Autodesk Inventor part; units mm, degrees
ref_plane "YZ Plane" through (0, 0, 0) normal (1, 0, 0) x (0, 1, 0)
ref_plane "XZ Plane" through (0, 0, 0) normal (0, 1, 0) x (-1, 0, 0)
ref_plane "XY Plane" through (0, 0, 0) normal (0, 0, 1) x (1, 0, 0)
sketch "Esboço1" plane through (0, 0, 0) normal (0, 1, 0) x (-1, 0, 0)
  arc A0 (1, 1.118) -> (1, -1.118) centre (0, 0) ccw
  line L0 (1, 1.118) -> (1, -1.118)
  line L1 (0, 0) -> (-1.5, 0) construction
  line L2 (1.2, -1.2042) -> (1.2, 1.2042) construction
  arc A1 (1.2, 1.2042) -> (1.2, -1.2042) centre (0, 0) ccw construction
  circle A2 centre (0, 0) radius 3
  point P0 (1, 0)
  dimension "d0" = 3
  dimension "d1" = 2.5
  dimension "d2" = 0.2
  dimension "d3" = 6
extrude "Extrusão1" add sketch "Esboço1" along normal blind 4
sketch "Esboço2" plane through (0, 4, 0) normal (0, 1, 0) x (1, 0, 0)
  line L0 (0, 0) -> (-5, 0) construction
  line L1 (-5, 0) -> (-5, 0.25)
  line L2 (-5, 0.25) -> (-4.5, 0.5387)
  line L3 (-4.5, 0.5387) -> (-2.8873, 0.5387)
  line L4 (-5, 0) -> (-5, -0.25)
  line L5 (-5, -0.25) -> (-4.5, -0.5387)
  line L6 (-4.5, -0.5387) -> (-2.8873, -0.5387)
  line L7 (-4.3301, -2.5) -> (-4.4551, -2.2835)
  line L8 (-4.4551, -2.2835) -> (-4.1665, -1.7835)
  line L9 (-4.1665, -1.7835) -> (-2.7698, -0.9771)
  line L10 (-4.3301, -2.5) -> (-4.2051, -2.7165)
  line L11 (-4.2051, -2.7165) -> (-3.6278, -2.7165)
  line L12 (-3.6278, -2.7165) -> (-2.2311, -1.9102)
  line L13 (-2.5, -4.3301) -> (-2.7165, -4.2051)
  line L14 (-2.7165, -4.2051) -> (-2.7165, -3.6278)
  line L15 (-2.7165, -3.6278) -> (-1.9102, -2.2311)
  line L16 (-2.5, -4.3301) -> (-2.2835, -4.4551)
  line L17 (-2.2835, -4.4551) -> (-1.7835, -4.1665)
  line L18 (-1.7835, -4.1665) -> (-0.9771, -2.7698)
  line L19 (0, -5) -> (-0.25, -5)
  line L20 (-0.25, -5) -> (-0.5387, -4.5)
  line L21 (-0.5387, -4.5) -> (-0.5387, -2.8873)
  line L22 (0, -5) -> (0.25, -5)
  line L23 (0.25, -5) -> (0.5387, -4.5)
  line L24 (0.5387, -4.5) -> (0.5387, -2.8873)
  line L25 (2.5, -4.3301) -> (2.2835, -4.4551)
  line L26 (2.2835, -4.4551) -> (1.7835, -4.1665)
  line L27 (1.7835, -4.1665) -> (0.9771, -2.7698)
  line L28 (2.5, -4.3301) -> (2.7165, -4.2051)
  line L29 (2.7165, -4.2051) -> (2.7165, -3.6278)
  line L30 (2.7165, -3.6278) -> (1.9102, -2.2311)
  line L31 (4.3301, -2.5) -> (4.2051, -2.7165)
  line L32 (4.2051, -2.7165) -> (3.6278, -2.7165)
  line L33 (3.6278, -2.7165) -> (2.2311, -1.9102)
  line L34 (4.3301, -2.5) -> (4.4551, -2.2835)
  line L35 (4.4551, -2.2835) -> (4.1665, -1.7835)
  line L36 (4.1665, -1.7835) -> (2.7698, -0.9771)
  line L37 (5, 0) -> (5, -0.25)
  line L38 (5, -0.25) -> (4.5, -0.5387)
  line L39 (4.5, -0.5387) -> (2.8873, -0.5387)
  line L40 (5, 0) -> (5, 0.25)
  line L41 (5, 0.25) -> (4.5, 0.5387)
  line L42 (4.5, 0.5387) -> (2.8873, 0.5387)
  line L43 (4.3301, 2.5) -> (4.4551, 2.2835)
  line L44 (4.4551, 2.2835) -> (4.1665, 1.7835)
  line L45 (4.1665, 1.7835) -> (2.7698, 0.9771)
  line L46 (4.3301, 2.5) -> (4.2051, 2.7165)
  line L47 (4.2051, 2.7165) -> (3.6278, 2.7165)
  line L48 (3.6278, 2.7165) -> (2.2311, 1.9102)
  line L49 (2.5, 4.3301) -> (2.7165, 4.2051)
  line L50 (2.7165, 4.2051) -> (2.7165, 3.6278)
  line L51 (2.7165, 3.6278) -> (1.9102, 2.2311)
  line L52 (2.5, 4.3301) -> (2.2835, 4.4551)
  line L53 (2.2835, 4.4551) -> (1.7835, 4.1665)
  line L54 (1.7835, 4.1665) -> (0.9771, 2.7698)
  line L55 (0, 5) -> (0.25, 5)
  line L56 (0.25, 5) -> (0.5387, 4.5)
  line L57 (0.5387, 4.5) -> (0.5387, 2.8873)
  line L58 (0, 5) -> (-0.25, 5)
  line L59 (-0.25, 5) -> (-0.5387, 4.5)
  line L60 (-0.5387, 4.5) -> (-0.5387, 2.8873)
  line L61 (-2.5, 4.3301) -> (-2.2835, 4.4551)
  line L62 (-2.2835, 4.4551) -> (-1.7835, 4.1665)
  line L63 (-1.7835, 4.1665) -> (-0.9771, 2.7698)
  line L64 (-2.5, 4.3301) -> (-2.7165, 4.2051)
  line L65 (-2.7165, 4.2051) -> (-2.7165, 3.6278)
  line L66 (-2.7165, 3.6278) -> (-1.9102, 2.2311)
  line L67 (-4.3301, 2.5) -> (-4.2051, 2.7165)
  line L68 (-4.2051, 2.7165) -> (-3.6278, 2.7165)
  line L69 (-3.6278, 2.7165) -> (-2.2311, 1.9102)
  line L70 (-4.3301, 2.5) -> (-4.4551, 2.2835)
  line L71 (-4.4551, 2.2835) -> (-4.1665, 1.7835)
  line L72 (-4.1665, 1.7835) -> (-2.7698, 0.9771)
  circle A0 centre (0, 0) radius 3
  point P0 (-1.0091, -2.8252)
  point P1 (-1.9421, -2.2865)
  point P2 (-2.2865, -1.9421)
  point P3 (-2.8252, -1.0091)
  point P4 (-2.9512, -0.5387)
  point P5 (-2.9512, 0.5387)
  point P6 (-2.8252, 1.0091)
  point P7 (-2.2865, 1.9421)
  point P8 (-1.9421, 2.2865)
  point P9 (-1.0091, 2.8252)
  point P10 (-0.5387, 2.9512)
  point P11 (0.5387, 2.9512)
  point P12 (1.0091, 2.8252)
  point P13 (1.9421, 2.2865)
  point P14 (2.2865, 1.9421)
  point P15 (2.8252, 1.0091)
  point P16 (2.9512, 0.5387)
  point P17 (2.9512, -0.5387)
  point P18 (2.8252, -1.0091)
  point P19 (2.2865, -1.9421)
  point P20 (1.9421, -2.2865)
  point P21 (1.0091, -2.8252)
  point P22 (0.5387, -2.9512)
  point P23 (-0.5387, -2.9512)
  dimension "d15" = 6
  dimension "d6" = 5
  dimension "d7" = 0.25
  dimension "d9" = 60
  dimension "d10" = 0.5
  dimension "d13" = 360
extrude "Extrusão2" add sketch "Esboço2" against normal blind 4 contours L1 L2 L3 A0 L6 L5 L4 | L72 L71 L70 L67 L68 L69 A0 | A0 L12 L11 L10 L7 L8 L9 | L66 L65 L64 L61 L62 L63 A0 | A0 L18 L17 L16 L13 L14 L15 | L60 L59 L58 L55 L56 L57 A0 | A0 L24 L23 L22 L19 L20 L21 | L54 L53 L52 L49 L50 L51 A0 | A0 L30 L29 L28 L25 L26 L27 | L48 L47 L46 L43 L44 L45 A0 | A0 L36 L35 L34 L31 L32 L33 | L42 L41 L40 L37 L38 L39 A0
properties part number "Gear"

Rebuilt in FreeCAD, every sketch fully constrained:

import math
import FreeCAD as App
import Part
import Sketcher

V = App.Vector
Q = App.Units.Quantity

doc = App.newDocument("Part")
params = doc.addObject("Spreadsheet::Sheet", "Params")
for row, (alias, value) in enumerate([
    ("sketch1_diameter", "6 mm"),
    ("sketch1_radius", "1.5 mm"),
    ("pad1_length", "4 mm"),
    ("sketch2_radius", "3 mm"),
    ("sketch2_width", "0.5 mm"),
    ("sketch2_length", "0.5 mm"),
    ("pad2_length", "4 mm"),
], start=1):
    params.set(f"A{row}", alias)
    params.set(f"B{row}", "=" + value)
    params.setAlias(f"B{row}", alias)

body = doc.addObject("PartDesign::Body", "Body")

sketch1 = doc.addObject("Sketcher::SketchObject", "Sketch")
body.addObject(sketch1)
sketch1.AttachmentSupport = (doc.XZ_Plane, [""])
sketch1.MapMode = "FlatFace"
sketch1.addGeometry([
    Part.Circle(V(0, 0, 0), V(0, 0, 1), 3),
    Part.ArcOfCircle(Part.Circle(V(0, 0, 0), V(0, 0, 1), 1.499975), math.radians(-131.81118), math.radians(131.81118)),
    Part.LineSegment(V(-1, 1.118, 0), V(-1, -1.118, 0)),
], False)
sketch1.addConstraint([
    Sketcher.Constraint("Coincident", 1, 1, 2, 2),
    Sketcher.Constraint("Coincident", 2, 1, 1, 2),
    Sketcher.Constraint("Vertical", 2),
    Sketcher.Constraint("Coincident", 0, 3, -1, 1),
    Sketcher.Constraint("Coincident", 1, 3, -1, 1),
    Sketcher.Constraint("Diameter", 0, Q("6 mm")),
    Sketcher.Constraint("Radius", 1, Q("1.5 mm")),
    Sketcher.Constraint("DistanceX", 1, 1, -1, 1, Q("1 mm")),
])
sketch1.setExpression("Constraints[5]", "Params.sketch1_diameter")
sketch1.setExpression("Constraints[6]", "Params.sketch1_radius")
pad1 = doc.addObject("PartDesign::Pad", "Pad")
body.addObject(pad1)
pad1.Profile = sketch1
pad1.setExpression("Length", "Params.pad1_length")
pad1.Reversed = True

sketch2 = doc.addObject("Sketcher::SketchObject", "Sketch001")
body.addObject(sketch2)
sketch2.AttachmentSupport = (doc.XZ_Plane, [""])
sketch2.MapMode = "FlatFace"
sketch2.AttachmentOffset = App.Placement(V(0, 0, -4), App.Rotation())
sketch2.addGeometry([
    Part.LineSegment(V(-5, -0.25, 0), V(-5, 0.25, 0)),
    Part.LineSegment(V(-5, 0.25, 0), V(-4.5, 0.5387, 0)),
    Part.LineSegment(V(-4.5, 0.5387, 0), V(-2.951237, 0.5387, 0)),
    Part.ArcOfCircle(Part.Circle(V(0, 0, 0), V(0, 0, 1), 3), math.radians(169.65548), math.radians(190.34452)),
    Part.LineSegment(V(-2.951237, -0.5387, 0), V(-4.5, -0.5387, 0)),
    Part.LineSegment(V(-4.5, -0.5387, 0), V(-5, -0.25, 0)),
    Part.LineSegment(V(-4.1665, -1.7835, 0), V(-2.825199, -1.009085, 0)),
    Part.ArcOfCircle(Part.Circle(V(0, 0, 0), V(0, 0, 1), 3), math.radians(-160.344638), math.radians(-139.65492)),
    Part.LineSegment(V(-2.286478, -1.942169, 0), V(-3.6278, -2.7165, 0)),
    Part.LineSegment(V(-3.6278, -2.7165, 0), V(-4.2051, -2.7165, 0)),
    Part.LineSegment(V(-4.2051, -2.7165, 0), V(-4.4551, -2.2835, 0)),
    Part.LineSegment(V(-4.4551, -2.2835, 0), V(-4.1665, -1.7835, 0)),
    Part.ArcOfCircle(Part.Circle(V(0, 0, 0), V(0, 0, 1), 3), math.radians(139.65492), math.radians(160.344638)),
    Part.LineSegment(V(-2.825199, 1.009085, 0), V(-4.1665, 1.7835, 0)),
    Part.LineSegment(V(-4.1665, 1.7835, 0), V(-4.4551, 2.2835, 0)),
    Part.LineSegment(V(-4.4551, 2.2835, 0), V(-4.2051, 2.7165, 0)),
    Part.LineSegment(V(-4.2051, 2.7165, 0), V(-3.6278, 2.7165, 0)),
    Part.LineSegment(V(-3.6278, 2.7165, 0), V(-2.286478, 1.942169, 0)),
    Part.LineSegment(V(-2.7165, -3.6278, 0), V(-1.942169, -2.286478, 0)),
    Part.ArcOfCircle(Part.Circle(V(0, 0, 0), V(0, 0, 1), 3), math.radians(-130.34508), math.radians(-109.655362)),
    Part.LineSegment(V(-1.009085, -2.825199, 0), V(-1.7835, -4.1665, 0)),
    Part.LineSegment(V(-1.7835, -4.1665, 0), V(-2.2835, -4.4551, 0)),
    Part.LineSegment(V(-2.2835, -4.4551, 0), V(-2.7165, -4.2051, 0)),
    Part.LineSegment(V(-2.7165, -4.2051, 0), V(-2.7165, -3.6278, 0)),
    Part.ArcOfCircle(Part.Circle(V(0, 0, 0), V(0, 0, 1), 3), math.radians(109.655362), math.radians(130.34508)),
    Part.LineSegment(V(-1.942169, 2.286478, 0), V(-2.7165, 3.6278, 0)),
    Part.LineSegment(V(-2.7165, 3.6278, 0), V(-2.7165, 4.2051, 0)),
    Part.LineSegment(V(-2.7165, 4.2051, 0), V(-2.2835, 4.4551, 0)),
    Part.LineSegment(V(-2.2835, 4.4551, 0), V(-1.7835, 4.1665, 0)),
    Part.LineSegment(V(-1.7835, 4.1665, 0), V(-1.009085, 2.825199, 0)),
    Part.LineSegment(V(-0.5387, -4.5, 0), V(-0.5387, -2.951237, 0)),
    Part.ArcOfCircle(Part.Circle(V(0, 0, 0), V(0, 0, 1), 3), math.radians(-100.34452), math.radians(-79.65548)),
    Part.LineSegment(V(0.5387, -2.951237, 0), V(0.5387, -4.5, 0)),
    Part.LineSegment(V(0.5387, -4.5, 0), V(0.25, -5, 0)),
    Part.LineSegment(V(0.25, -5, 0), V(-0.25, -5, 0)),
    Part.LineSegment(V(-0.25, -5, 0), V(-0.5387, -4.5, 0)),
    Part.ArcOfCircle(Part.Circle(V(0, 0, 0), V(0, 0, 1), 3), math.radians(79.65548), math.radians(100.34452)),
    Part.LineSegment(V(-0.5387, 2.951237, 0), V(-0.5387, 4.5, 0)),
    Part.LineSegment(V(-0.5387, 4.5, 0), V(-0.25, 5, 0)),
    Part.LineSegment(V(-0.25, 5, 0), V(0.25, 5, 0)),
    Part.LineSegment(V(0.25, 5, 0), V(0.5387, 4.5, 0)),
    Part.LineSegment(V(0.5387, 4.5, 0), V(0.5387, 2.951237, 0)),
    Part.LineSegment(V(1.7835, -4.1665, 0), V(1.009085, -2.825199, 0)),
    Part.ArcOfCircle(Part.Circle(V(0, 0, 0), V(0, 0, 1), 3), math.radians(-70.344638), math.radians(-49.65492)),
    Part.LineSegment(V(1.942169, -2.286478, 0), V(2.7165, -3.6278, 0)),
    Part.LineSegment(V(2.7165, -3.6278, 0), V(2.7165, -4.2051, 0)),
    Part.LineSegment(V(2.7165, -4.2051, 0), V(2.2835, -4.4551, 0)),
    Part.LineSegment(V(2.2835, -4.4551, 0), V(1.7835, -4.1665, 0)),
    Part.ArcOfCircle(Part.Circle(V(0, 0, 0), V(0, 0, 1), 3), math.radians(49.65492), math.radians(70.344638)),
    Part.LineSegment(V(1.009085, 2.825199, 0), V(1.7835, 4.1665, 0)),
    Part.LineSegment(V(1.7835, 4.1665, 0), V(2.2835, 4.4551, 0)),
    Part.LineSegment(V(2.2835, 4.4551, 0), V(2.7165, 4.2051, 0)),
    Part.LineSegment(V(2.7165, 4.2051, 0), V(2.7165, 3.6278, 0)),
    Part.LineSegment(V(2.7165, 3.6278, 0), V(1.942169, 2.286478, 0)),
    Part.LineSegment(V(3.6278, -2.7165, 0), V(2.286478, -1.942169, 0)),
    Part.ArcOfCircle(Part.Circle(V(0, 0, 0), V(0, 0, 1), 3), math.radians(-40.34508), math.radians(-19.655362)),
    Part.LineSegment(V(2.825199, -1.009085, 0), V(4.1665, -1.7835, 0)),
    Part.LineSegment(V(4.1665, -1.7835, 0), V(4.4551, -2.2835, 0)),
    Part.LineSegment(V(4.4551, -2.2835, 0), V(4.2051, -2.7165, 0)),
    Part.LineSegment(V(4.2051, -2.7165, 0), V(3.6278, -2.7165, 0)),
    Part.ArcOfCircle(Part.Circle(V(0, 0, 0), V(0, 0, 1), 3), math.radians(19.655362), math.radians(40.34508)),
    Part.LineSegment(V(2.286478, 1.942169, 0), V(3.6278, 2.7165, 0)),
    Part.LineSegment(V(3.6278, 2.7165, 0), V(4.2051, 2.7165, 0)),
    Part.LineSegment(V(4.2051, 2.7165, 0), V(4.4551, 2.2835, 0)),
    Part.LineSegment(V(4.4551, 2.2835, 0), V(4.1665, 1.7835, 0)),
    Part.LineSegment(V(4.1665, 1.7835, 0), V(2.825199, 1.009085, 0)),
    Part.LineSegment(V(4.5, -0.5387, 0), V(2.951237, -0.5387, 0)),
    Part.ArcOfCircle(Part.Circle(V(0, 0, 0), V(0, 0, 1), 3), math.radians(-10.34452), math.radians(10.34452)),
    Part.LineSegment(V(2.951237, 0.5387, 0), V(4.5, 0.5387, 0)),
    Part.LineSegment(V(4.5, 0.5387, 0), V(5, 0.25, 0)),
    Part.LineSegment(V(5, 0.25, 0), V(5, -0.25, 0)),
    Part.LineSegment(V(5, -0.25, 0), V(4.5, -0.5387, 0)),
], False)
sketch2.addConstraint([
    Sketcher.Constraint("Coincident", 0, 2, 1, 1),
    Sketcher.Constraint("Coincident", 1, 2, 2, 1),
    Sketcher.Constraint("Coincident", 2, 2, 3, 1),
    Sketcher.Constraint("Coincident", 3, 2, 4, 1),
    Sketcher.Constraint("Coincident", 4, 2, 5, 1),
    Sketcher.Constraint("Coincident", 5, 2, 0, 1),
    Sketcher.Constraint("Coincident", 6, 2, 7, 1),
    Sketcher.Constraint("Coincident", 7, 2, 8, 1),
    Sketcher.Constraint("Coincident", 8, 2, 9, 1),
    Sketcher.Constraint("Coincident", 9, 2, 10, 1),
    Sketcher.Constraint("Coincident", 10, 2, 11, 1),
    Sketcher.Constraint("Coincident", 11, 2, 6, 1),
    Sketcher.Constraint("Coincident", 12, 2, 13, 1),
    Sketcher.Constraint("Coincident", 13, 2, 14, 1),
    Sketcher.Constraint("Coincident", 14, 2, 15, 1),
    Sketcher.Constraint("Coincident", 15, 2, 16, 1),
    Sketcher.Constraint("Coincident", 16, 2, 17, 1),
    Sketcher.Constraint("Coincident", 17, 2, 12, 1),
    Sketcher.Constraint("Coincident", 18, 2, 19, 1),
    Sketcher.Constraint("Coincident", 19, 2, 20, 1),
    Sketcher.Constraint("Coincident", 20, 2, 21, 1),
    Sketcher.Constraint("Coincident", 21, 2, 22, 1),
    Sketcher.Constraint("Coincident", 22, 2, 23, 1),
    Sketcher.Constraint("Coincident", 23, 2, 18, 1),
    Sketcher.Constraint("Coincident", 24, 2, 25, 1),
    Sketcher.Constraint("Coincident", 25, 2, 26, 1),
    Sketcher.Constraint("Coincident", 26, 2, 27, 1),
    Sketcher.Constraint("Coincident", 27, 2, 28, 1),
    Sketcher.Constraint("Coincident", 28, 2, 29, 1),
    Sketcher.Constraint("Coincident", 29, 2, 24, 1),
    Sketcher.Constraint("Coincident", 30, 2, 31, 1),
    Sketcher.Constraint("Coincident", 31, 2, 32, 1),
    Sketcher.Constraint("Coincident", 32, 2, 33, 1),
    Sketcher.Constraint("Coincident", 33, 2, 34, 1),
    Sketcher.Constraint("Coincident", 34, 2, 35, 1),
    Sketcher.Constraint("Coincident", 35, 2, 30, 1),
    Sketcher.Constraint("Coincident", 36, 2, 37, 1),
    Sketcher.Constraint("Coincident", 37, 2, 38, 1),
    Sketcher.Constraint("Coincident", 38, 2, 39, 1),
    Sketcher.Constraint("Coincident", 39, 2, 40, 1),
    Sketcher.Constraint("Coincident", 40, 2, 41, 1),
    Sketcher.Constraint("Coincident", 41, 2, 36, 1),
    Sketcher.Constraint("Coincident", 42, 2, 43, 1),
    Sketcher.Constraint("Coincident", 43, 2, 44, 1),
    Sketcher.Constraint("Coincident", 44, 2, 45, 1),
    Sketcher.Constraint("Coincident", 45, 2, 46, 1),
    Sketcher.Constraint("Coincident", 46, 2, 47, 1),
    Sketcher.Constraint("Coincident", 47, 2, 42, 1),
    Sketcher.Constraint("Coincident", 48, 2, 49, 1),
    Sketcher.Constraint("Coincident", 49, 2, 50, 1),
    Sketcher.Constraint("Coincident", 50, 2, 51, 1),
    Sketcher.Constraint("Coincident", 51, 2, 52, 1),
    Sketcher.Constraint("Coincident", 52, 2, 53, 1),
    Sketcher.Constraint("Coincident", 53, 2, 48, 1),
    Sketcher.Constraint("Coincident", 54, 2, 55, 1),
    Sketcher.Constraint("Coincident", 55, 2, 56, 1),
    Sketcher.Constraint("Coincident", 56, 2, 57, 1),
    Sketcher.Constraint("Coincident", 57, 2, 58, 1),
    Sketcher.Constraint("Coincident", 58, 2, 59, 1),
    Sketcher.Constraint("Coincident", 59, 2, 54, 1),
    Sketcher.Constraint("Coincident", 60, 2, 61, 1),
    Sketcher.Constraint("Coincident", 61, 2, 62, 1),
    Sketcher.Constraint("Coincident", 62, 2, 63, 1),
    Sketcher.Constraint("Coincident", 63, 2, 64, 1),
    Sketcher.Constraint("Coincident", 64, 2, 65, 1),
    Sketcher.Constraint("Coincident", 65, 2, 60, 1),
    Sketcher.Constraint("Coincident", 66, 2, 67, 1),
    Sketcher.Constraint("Coincident", 67, 2, 68, 1),
    Sketcher.Constraint("Coincident", 68, 2, 69, 1),
    Sketcher.Constraint("Coincident", 69, 2, 70, 1),
    Sketcher.Constraint("Coincident", 70, 2, 71, 1),
    Sketcher.Constraint("Coincident", 71, 2, 66, 1),
    Sketcher.Constraint("Vertical", 0),
    Sketcher.Constraint("Horizontal", 2),
    Sketcher.Constraint("Horizontal", 4),
    Sketcher.Constraint("Horizontal", 9),
    Sketcher.Constraint("Horizontal", 16),
    Sketcher.Constraint("Vertical", 23),
    Sketcher.Constraint("Vertical", 26),
    Sketcher.Constraint("Vertical", 30),
    Sketcher.Constraint("Vertical", 32),
    Sketcher.Constraint("Horizontal", 34),
    Sketcher.Constraint("Vertical", 37),
    Sketcher.Constraint("Horizontal", 39),
    Sketcher.Constraint("Vertical", 41),
    Sketcher.Constraint("Vertical", 45),
    Sketcher.Constraint("Vertical", 52),
    Sketcher.Constraint("Horizontal", 59),
    Sketcher.Constraint("Horizontal", 62),
    Sketcher.Constraint("Horizontal", 66),
    Sketcher.Constraint("Horizontal", 68),
    Sketcher.Constraint("Vertical", 70),
    Sketcher.Constraint("Coincident", 3, 3, -1, 1),
    Sketcher.Constraint("Coincident", 7, 3, -1, 1),
    Sketcher.Constraint("Coincident", 12, 3, -1, 1),
    Sketcher.Constraint("Coincident", 19, 3, -1, 1),
    Sketcher.Constraint("Coincident", 24, 3, -1, 1),
    Sketcher.Constraint("Coincident", 31, 3, -1, 1),
    Sketcher.Constraint("Coincident", 36, 3, -1, 1),
    Sketcher.Constraint("Coincident", 43, 3, -1, 1),
    Sketcher.Constraint("Coincident", 48, 3, -1, 1),
    Sketcher.Constraint("Coincident", 55, 3, -1, 1),
    Sketcher.Constraint("Coincident", 60, 3, -1, 1),
    Sketcher.Constraint("Coincident", 67, 3, -1, 1),
    Sketcher.Constraint("Equal", 3, 7),
    Sketcher.Constraint("Equal", 7, 12),
    Sketcher.Constraint("Equal", 12, 19),
    Sketcher.Constraint("Equal", 19, 24),
    Sketcher.Constraint("Equal", 24, 31),
    Sketcher.Constraint("Equal", 31, 36),
    Sketcher.Constraint("Equal", 36, 43),
    Sketcher.Constraint("Equal", 43, 48),
    Sketcher.Constraint("Equal", 48, 55),
    Sketcher.Constraint("Equal", 55, 60),
    Sketcher.Constraint("Equal", 60, 67),
    Sketcher.Constraint("Symmetric", 32, 2, 37, 2, -1, 1),
    Sketcher.Constraint("Symmetric", 33, 2, 38, 2, -1, 1),
    Sketcher.Constraint("Symmetric", 35, 2, 40, 2, -1, 1),
    Sketcher.Constraint("Symmetric", 25, 2, 44, 2, -1, 1),
    Sketcher.Constraint("Symmetric", 27, 2, 46, 2, -1, 1),
    Sketcher.Constraint("Symmetric", 28, 2, 47, 2, -1, 1),
    Sketcher.Constraint("Symmetric", 20, 2, 49, 2, -1, 1),
    Sketcher.Constraint("Symmetric", 21, 2, 50, 2, -1, 1),
    Sketcher.Constraint("Symmetric", 22, 2, 51, 2, -1, 1),
    Sketcher.Constraint("Symmetric", 13, 2, 56, 2, -1, 1),
    Sketcher.Constraint("Symmetric", 14, 2, 57, 2, -1, 1),
    Sketcher.Constraint("Symmetric", 15, 2, 58, 2, -1, 1),
    Sketcher.Constraint("Symmetric", 8, 2, 61, 2, -1, 1),
    Sketcher.Constraint("Symmetric", 10, 2, 63, 2, -1, 1),
    Sketcher.Constraint("Symmetric", 11, 2, 64, 2, -1, 1),
    Sketcher.Constraint("Symmetric", 4, 2, 68, 2, -1, 1),
    Sketcher.Constraint("Symmetric", 5, 2, 69, 2, -1, 1),
    Sketcher.Constraint("Symmetric", 1, 2, 71, 2, -1, 1),
    Sketcher.Constraint("Symmetric", 32, 2, 35, 2, -2),
    Sketcher.Constraint("Symmetric", 23, 2, 44, 2, -2),
    Sketcher.Constraint("Symmetric", 21, 2, 46, 2, -2),
    Sketcher.Constraint("Symmetric", 20, 2, 47, 2, -2),
    Sketcher.Constraint("Symmetric", 11, 2, 56, 2, -2),
    Sketcher.Constraint("Symmetric", 10, 2, 57, 2, -2),
    Sketcher.Constraint("Symmetric", 9, 2, 58, 2, -2),
    Sketcher.Constraint("Symmetric", 1, 2, 68, 2, -2),
    Sketcher.Constraint("Parallel", 1, 6),
    Sketcher.Constraint("Parallel", 6, 8),
    Sketcher.Constraint("Perpendicular", 8, 10),
    Sketcher.Constraint("Perpendicular", 5, 11),
    Sketcher.Constraint("Perpendicular", 11, 13),
    Sketcher.Constraint("Parallel", 10, 14),
    Sketcher.Constraint("Perpendicular", 15, 17),
    Sketcher.Constraint("Perpendicular", 17, 18),
    Sketcher.Constraint("Parallel", 18, 20),
    Sketcher.Constraint("Perpendicular", 14, 21),
    Sketcher.Constraint("Perpendicular", 20, 22),
    Sketcher.Constraint("Perpendicular", 21, 25),
    Sketcher.Constraint("Perpendicular", 25, 27),
    Sketcher.Constraint("Perpendicular", 27, 29),
    Sketcher.Constraint("Perpendicular", 28, 33),
    Sketcher.Constraint("Parallel", 29, 35),
    Sketcher.Constraint("Parallel", 35, 40),
    Sketcher.Constraint("Parallel", 40, 42),
    Sketcher.Constraint("Parallel", 42, 44),
    Sketcher.Constraint("Perpendicular", 44, 46),
    Sketcher.Constraint("Perpendicular", 47, 49),
    Sketcher.Constraint("Perpendicular", 51, 53),
    Sketcher.Constraint("Perpendicular", 53, 54),
    Sketcher.Constraint("Parallel", 54, 56),
    Sketcher.Constraint("Perpendicular", 57, 61),
    Sketcher.Constraint("Perpendicular", 61, 63),
    Sketcher.Constraint("Perpendicular", 63, 65),
    Sketcher.Constraint("Parallel", 65, 71),
    Sketcher.Constraint("Horizontal", 25, 2, 52, 2),
    Sketcher.Constraint("Horizontal", 7, 2, 54, 2),
    Sketcher.Constraint("Horizontal", 17, 2, 60, 2),
    Sketcher.Constraint("Equal", 39, 0),
    Sketcher.Constraint("Equal", 62, 23),
    Sketcher.Constraint("Equal", 68, 30),
    Sketcher.Constraint("Equal", 6, 8),
    Sketcher.Constraint("Equal", 5, 11),
    Sketcher.Constraint("Equal", 17, 18),
    Sketcher.Constraint("Equal", 18, 20),
    Sketcher.Constraint("Equal", 14, 21),
    Sketcher.Constraint("Equal", 15, 22),
    Sketcher.Constraint("Equal", 28, 33),
    Sketcher.Constraint("Radius", 3, Q("3 mm")),
    Sketcher.Constraint("Angle", 29, Q("-59.9995 deg")),
    Sketcher.Constraint("DistanceX", 34, 2, 34, 1, Q("0.5 mm")),
    Sketcher.Constraint("DistanceX", 0, 2, -1, 1, Q("5 mm")),
    Sketcher.Constraint("Distance", 10, Q("0.5 mm")),
    Sketcher.Constraint("DistanceX", 1, 2, -1, 1, Q("4.5 mm")),
    Sketcher.Constraint("DistanceX", 9, 2, 9, 1, Q("0.5773 mm")),
    Sketcher.Constraint("DistanceX", 9, 2, -1, 1, Q("4.205 mm")),
])
sketch2.setExpression("Constraints[182]", "Params.sketch2_radius")
sketch2.setExpression("Constraints[184]", "Params.sketch2_width")
sketch2.setExpression("Constraints[186]", "Params.sketch2_length")
pad2 = doc.addObject("PartDesign::Pad", "Pad001")
body.addObject(pad2)
pad2.Profile = sketch2
pad2.setExpression("Length", "Params.pad2_length")

doc.recompute()
